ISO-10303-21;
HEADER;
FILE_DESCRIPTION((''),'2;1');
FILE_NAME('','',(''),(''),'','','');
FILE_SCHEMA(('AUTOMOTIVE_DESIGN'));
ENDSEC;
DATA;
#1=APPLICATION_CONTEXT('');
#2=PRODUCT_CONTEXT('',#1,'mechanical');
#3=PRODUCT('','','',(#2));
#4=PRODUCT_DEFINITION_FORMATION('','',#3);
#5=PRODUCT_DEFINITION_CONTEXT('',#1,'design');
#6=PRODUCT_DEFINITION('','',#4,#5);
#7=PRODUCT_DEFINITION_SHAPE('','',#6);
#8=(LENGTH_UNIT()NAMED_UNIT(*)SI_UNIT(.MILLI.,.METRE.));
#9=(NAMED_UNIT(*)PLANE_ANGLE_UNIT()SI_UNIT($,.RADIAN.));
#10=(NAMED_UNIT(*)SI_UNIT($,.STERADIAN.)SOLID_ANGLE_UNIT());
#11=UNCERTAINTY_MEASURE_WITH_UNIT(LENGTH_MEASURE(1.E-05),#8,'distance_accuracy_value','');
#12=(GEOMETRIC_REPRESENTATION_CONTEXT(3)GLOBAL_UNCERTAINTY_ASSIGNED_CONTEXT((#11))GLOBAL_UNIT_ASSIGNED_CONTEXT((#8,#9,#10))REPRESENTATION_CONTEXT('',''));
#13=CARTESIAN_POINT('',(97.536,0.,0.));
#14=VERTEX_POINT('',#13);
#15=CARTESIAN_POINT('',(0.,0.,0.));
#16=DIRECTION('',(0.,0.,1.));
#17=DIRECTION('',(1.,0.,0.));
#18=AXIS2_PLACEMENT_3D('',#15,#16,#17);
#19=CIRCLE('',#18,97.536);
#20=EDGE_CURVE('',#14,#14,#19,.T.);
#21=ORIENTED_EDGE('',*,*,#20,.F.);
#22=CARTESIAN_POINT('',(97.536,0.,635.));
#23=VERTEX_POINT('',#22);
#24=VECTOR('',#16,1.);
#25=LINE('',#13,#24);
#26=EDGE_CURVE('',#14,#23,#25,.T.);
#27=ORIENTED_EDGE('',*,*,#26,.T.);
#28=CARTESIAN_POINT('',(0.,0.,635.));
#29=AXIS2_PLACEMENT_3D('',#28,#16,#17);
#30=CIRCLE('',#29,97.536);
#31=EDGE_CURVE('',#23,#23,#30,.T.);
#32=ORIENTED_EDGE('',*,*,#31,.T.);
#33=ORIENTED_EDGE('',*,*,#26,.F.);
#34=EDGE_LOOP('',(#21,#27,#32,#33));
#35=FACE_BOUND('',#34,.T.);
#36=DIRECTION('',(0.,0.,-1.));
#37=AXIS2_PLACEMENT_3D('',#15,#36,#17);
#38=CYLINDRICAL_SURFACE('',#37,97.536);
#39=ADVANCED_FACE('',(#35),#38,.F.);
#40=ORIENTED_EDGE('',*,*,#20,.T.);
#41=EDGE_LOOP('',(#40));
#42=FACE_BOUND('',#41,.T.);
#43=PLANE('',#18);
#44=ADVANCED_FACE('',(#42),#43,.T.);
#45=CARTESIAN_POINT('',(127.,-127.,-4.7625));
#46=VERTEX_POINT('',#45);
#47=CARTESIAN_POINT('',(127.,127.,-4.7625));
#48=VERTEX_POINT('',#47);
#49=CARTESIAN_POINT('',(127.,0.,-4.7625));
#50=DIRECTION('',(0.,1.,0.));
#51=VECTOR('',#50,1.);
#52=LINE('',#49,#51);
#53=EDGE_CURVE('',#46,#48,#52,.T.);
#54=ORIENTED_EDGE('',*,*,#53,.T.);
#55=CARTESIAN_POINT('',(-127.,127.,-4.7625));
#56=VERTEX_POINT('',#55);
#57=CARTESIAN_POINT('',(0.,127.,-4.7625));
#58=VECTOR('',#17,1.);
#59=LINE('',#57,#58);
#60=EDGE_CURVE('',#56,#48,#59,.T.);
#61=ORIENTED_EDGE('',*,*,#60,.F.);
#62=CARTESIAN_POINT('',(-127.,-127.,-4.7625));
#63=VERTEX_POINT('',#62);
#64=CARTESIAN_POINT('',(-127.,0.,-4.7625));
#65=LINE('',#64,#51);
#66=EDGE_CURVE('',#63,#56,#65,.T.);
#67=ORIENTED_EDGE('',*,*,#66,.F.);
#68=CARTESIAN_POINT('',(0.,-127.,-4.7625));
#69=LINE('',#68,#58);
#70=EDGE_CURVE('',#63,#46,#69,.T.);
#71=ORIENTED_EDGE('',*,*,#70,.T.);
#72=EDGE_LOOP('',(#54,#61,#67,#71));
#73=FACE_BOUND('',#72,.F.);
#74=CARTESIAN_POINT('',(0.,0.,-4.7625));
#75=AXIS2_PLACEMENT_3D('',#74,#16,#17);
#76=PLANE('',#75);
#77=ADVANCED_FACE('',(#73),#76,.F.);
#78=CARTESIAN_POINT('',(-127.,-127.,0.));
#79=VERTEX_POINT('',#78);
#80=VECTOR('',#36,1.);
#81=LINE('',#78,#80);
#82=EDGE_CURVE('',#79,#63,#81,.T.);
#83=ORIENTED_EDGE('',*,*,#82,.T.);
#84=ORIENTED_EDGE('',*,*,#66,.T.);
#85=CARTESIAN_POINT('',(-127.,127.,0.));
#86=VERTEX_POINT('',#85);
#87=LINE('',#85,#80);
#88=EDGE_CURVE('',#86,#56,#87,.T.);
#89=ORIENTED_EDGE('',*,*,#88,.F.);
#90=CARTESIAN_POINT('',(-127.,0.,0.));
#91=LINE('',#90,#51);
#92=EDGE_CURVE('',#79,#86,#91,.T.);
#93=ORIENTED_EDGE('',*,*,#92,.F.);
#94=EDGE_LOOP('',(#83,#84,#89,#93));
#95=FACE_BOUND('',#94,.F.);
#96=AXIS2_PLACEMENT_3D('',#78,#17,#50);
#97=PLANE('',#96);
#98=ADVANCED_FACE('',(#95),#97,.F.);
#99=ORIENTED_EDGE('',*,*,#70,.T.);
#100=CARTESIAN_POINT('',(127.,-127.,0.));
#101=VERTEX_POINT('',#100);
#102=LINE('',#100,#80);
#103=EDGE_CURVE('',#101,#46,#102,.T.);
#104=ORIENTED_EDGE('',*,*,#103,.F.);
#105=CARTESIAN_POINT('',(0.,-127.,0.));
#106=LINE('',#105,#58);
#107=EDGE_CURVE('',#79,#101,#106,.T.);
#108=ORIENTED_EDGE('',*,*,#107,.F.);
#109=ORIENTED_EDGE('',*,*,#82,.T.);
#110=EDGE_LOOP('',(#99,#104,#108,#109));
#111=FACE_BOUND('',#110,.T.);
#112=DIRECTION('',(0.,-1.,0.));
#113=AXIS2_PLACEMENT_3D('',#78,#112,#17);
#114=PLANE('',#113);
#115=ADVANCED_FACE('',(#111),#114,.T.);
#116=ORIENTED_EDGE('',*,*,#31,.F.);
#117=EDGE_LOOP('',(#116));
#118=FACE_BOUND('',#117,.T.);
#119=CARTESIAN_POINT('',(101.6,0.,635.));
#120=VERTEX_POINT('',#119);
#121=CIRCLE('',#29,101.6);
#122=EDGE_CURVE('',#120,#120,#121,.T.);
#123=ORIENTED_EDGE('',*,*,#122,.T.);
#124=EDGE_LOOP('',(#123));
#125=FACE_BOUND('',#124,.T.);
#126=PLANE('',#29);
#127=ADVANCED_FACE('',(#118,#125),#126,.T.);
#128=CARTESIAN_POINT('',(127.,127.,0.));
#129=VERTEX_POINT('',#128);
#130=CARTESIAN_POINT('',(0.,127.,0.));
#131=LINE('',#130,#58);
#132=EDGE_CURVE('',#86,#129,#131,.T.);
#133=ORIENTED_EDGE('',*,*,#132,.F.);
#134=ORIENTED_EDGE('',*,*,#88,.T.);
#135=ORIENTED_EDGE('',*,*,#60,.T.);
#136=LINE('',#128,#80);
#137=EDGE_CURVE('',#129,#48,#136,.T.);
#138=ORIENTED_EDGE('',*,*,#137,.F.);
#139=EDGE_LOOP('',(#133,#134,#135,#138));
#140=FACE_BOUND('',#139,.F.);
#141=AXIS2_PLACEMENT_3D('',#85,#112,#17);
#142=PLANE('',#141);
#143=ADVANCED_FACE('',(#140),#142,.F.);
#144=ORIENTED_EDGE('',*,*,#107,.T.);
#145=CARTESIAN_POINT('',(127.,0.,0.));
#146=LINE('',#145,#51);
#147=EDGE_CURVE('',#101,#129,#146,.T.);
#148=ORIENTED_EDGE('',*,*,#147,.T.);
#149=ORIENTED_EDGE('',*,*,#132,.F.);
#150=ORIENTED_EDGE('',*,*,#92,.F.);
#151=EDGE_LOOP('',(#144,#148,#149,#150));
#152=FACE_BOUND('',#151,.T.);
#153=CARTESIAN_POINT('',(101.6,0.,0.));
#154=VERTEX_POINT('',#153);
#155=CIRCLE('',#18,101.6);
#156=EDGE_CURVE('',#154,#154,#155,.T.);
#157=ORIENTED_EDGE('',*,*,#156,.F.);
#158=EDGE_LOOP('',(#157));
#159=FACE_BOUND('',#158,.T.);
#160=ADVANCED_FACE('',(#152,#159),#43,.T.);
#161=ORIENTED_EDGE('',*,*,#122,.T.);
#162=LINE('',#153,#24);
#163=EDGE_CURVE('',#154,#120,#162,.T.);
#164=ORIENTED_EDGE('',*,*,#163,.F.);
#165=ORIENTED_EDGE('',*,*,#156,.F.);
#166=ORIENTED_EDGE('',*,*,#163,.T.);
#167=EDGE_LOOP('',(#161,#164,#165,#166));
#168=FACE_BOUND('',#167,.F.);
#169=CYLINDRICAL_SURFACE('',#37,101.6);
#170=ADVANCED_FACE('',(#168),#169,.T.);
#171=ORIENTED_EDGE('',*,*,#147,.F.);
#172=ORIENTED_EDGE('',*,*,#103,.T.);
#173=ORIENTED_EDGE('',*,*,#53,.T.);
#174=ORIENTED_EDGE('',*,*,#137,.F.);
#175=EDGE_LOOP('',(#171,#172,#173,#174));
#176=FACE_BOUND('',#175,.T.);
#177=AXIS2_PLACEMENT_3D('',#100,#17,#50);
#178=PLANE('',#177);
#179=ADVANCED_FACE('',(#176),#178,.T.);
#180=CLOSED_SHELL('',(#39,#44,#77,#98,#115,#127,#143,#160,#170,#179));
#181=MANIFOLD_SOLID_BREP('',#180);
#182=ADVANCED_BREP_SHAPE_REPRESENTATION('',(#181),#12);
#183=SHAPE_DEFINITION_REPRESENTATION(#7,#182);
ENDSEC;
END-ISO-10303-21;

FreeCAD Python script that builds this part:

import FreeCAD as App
import Part
import Sketcher

V = App.Vector
Q = App.Units.Quantity

doc = App.newDocument("Part")
body = doc.addObject("PartDesign::Body", "Body")

sketch1 = body.newObject("Sketcher::SketchObject", "Sketch")
sketch1.AttachmentSupport = (doc.getObject("XY_Plane"), [""])
sketch1.MapMode = "FlatFace"
sketch1.addGeometry([
    Part.Circle(V(0, 0, 0), V(0, 0, 1), 101.6),
    Part.Circle(V(0, 0, 0), V(0, 0, 1), 97.536),
], False)
sketch1.addConstraint([
    Sketcher.Constraint("Coincident", 0, 3, -1, 1),
    Sketcher.Constraint("Coincident", 1, 3, -1, 1),
    Sketcher.Constraint("Diameter", 0, Q("8 in")),
    Sketcher.Constraint("Diameter", 1, Q("7.68 in")),
])
pad1 = body.newObject("PartDesign::Pad", "Pad")
pad1.Profile = sketch1
pad1.Length = Q("25 in")

sketch2 = body.newObject("Sketcher::SketchObject", "Sketch001")
sketch2.AttachmentSupport = (doc.getObject("XY_Plane"), [""])
sketch2.MapMode = "FlatFace"
sketch2.addGeometry([
    Part.LineSegment(V(-127, 127, 0), V(-127, -127, 0)),
    Part.LineSegment(V(-127, -127, 0), V(127, -127, 0)),
    Part.LineSegment(V(127, -127, 0), V(127, 127, 0)),
    Part.LineSegment(V(127, 127, 0), V(-127, 127, 0)),
], False)
sketch2.addConstraint([
    Sketcher.Constraint("Coincident", 0, 2, 1, 1),
    Sketcher.Constraint("Coincident", 1, 2, 2, 1),
    Sketcher.Constraint("Coincident", 2, 2, 3, 1),
    Sketcher.Constraint("Coincident", 3, 2, 0, 1),
    Sketcher.Constraint("Vertical", 0),
    Sketcher.Constraint("Horizontal", 1),
    Sketcher.Constraint("Vertical", 2),
    Sketcher.Constraint("Horizontal", 3),
    Sketcher.Constraint("Symmetric", 0, 2, 2, 2, -1, 1),
    Sketcher.Constraint("Equal", 3, 0),
    Sketcher.Constraint("DistanceX", 1, 1, 1, 2, Q("10 in")),
])
pad2 = body.newObject("PartDesign::Pad", "Pad001")
pad2.Profile = sketch2
pad2.Length = Q("0.1875 in")
pad2.Reversed = True

doc.recompute()
